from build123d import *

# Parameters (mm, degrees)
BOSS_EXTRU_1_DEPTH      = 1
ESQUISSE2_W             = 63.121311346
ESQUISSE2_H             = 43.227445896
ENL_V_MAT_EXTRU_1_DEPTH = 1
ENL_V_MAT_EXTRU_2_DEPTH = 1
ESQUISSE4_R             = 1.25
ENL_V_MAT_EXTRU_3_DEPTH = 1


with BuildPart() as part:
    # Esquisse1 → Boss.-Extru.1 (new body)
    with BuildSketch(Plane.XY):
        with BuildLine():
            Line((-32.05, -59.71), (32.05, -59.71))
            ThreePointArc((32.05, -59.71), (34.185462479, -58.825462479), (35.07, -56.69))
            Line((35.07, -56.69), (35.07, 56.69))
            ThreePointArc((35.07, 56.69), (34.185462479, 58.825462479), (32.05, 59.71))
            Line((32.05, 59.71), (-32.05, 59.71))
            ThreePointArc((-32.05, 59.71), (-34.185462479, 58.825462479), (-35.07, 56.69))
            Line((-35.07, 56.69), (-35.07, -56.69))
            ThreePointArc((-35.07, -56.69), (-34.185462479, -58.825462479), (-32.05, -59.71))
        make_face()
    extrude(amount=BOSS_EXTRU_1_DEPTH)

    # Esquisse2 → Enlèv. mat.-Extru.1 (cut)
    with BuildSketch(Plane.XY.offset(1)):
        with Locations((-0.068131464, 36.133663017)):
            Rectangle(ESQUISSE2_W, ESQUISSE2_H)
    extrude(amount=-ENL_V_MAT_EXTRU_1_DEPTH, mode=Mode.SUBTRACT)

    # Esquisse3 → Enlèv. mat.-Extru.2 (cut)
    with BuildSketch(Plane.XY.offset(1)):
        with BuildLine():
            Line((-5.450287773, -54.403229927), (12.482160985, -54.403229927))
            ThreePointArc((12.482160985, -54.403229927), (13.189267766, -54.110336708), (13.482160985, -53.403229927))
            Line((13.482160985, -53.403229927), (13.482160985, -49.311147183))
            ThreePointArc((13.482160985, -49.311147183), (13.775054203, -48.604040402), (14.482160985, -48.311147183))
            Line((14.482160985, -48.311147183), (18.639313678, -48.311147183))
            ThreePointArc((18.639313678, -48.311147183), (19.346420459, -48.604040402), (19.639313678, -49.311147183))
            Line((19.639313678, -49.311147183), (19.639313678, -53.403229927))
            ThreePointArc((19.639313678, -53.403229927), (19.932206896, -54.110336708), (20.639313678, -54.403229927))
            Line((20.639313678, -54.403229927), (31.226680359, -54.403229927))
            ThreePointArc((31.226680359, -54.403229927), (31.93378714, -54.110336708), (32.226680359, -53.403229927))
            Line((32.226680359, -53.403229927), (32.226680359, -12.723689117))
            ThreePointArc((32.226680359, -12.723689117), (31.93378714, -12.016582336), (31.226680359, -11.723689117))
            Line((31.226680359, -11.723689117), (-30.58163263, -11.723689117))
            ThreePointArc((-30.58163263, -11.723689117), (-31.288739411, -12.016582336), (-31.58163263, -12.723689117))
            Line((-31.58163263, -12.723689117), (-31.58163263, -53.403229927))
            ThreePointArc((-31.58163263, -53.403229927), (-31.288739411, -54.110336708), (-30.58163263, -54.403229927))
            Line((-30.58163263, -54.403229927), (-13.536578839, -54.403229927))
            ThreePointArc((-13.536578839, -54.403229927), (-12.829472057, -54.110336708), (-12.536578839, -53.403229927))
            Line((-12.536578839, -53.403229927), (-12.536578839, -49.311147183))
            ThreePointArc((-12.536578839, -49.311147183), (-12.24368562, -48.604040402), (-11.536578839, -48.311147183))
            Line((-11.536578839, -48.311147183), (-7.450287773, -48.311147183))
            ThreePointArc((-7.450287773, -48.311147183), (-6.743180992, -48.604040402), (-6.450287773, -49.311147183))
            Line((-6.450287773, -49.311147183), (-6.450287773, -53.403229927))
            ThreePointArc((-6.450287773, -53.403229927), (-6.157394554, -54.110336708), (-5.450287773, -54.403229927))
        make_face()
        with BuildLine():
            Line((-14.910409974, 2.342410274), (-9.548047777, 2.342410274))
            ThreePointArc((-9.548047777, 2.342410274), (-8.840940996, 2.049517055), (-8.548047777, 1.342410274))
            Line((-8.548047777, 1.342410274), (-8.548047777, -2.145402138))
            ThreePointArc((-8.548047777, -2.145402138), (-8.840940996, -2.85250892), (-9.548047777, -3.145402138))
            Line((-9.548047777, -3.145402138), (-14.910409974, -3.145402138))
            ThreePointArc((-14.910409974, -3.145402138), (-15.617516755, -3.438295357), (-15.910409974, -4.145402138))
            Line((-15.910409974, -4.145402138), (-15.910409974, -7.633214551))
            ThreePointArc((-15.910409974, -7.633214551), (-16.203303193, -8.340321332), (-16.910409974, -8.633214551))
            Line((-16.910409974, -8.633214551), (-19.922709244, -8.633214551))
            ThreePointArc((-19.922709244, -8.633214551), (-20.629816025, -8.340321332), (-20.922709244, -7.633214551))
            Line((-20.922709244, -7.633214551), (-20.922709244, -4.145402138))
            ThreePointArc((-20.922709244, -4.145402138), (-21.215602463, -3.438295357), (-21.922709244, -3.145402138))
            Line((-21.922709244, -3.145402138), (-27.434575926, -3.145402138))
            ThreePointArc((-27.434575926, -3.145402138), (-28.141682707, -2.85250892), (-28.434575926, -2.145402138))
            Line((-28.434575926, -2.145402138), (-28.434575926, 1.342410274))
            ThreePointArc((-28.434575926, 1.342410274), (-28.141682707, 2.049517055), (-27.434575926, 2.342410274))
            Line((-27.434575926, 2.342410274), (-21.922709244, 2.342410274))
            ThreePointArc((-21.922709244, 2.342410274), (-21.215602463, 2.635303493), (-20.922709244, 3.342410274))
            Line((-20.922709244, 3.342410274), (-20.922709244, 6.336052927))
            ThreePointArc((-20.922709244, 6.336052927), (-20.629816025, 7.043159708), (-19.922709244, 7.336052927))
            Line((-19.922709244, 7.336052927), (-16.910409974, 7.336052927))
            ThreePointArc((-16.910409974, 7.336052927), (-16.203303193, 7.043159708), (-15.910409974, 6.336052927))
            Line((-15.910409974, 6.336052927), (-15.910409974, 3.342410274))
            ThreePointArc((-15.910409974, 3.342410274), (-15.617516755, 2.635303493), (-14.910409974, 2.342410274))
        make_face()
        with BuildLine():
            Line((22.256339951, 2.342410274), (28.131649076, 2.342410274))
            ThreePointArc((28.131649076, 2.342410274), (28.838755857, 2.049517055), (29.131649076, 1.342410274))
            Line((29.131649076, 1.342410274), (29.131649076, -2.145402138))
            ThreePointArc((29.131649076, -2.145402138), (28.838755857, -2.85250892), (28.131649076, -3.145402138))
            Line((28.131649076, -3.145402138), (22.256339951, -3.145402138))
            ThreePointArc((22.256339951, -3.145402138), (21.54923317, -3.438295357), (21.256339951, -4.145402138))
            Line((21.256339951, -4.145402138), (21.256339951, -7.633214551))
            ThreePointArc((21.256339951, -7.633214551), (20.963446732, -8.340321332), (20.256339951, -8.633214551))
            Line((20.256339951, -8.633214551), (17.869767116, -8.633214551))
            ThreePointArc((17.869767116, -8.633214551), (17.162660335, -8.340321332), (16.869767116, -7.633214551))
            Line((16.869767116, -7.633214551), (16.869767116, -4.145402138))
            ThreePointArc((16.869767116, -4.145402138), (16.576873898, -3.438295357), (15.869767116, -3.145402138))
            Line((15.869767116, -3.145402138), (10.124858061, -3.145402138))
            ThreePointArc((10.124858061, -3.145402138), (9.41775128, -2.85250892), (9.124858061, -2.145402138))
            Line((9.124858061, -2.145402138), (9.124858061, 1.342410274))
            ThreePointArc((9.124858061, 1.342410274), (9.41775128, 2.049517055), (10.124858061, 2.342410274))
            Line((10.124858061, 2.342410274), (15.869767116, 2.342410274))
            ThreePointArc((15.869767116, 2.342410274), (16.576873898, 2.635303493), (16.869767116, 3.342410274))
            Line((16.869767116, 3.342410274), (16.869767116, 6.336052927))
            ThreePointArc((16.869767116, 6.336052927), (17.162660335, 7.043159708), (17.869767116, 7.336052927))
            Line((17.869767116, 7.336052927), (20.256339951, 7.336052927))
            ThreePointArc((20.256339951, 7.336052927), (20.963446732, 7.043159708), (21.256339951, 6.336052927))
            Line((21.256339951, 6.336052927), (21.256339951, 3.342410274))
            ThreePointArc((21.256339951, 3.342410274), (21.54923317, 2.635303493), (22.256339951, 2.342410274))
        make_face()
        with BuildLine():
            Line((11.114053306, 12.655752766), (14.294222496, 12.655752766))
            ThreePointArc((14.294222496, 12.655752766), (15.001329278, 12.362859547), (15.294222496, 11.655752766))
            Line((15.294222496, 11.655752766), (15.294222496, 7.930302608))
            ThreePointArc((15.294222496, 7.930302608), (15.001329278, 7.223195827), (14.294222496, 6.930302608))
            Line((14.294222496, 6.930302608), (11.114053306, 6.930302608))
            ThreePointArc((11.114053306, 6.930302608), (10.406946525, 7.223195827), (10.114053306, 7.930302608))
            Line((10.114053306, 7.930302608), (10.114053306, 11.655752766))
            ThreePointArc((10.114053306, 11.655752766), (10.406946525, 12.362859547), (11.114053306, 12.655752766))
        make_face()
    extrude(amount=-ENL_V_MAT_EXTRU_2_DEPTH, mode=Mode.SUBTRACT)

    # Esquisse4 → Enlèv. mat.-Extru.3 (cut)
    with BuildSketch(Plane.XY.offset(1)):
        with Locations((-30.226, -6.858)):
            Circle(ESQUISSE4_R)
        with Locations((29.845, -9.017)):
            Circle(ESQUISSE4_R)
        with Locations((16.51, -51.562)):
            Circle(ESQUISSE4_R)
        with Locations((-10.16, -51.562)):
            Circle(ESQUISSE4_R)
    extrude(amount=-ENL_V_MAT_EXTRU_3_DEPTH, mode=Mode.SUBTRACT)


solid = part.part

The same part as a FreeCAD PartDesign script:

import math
import FreeCAD as App
import Part
import Sketcher


def add_polygon(sketch, points):
    """Adds a closed chain of lines whose ends are joined by coincident constraints."""
    first, n = sketch.GeometryCount, len(points)
    for a, b in zip(points, points[1:] + points[:1]):
        sketch.addGeometry(Part.LineSegment(App.Vector(*a, 0), App.Vector(*b, 0)), False)
    for i in range(n):
        sketch.addConstraint(Sketcher.Constraint("Coincident", first + i, 2, first + (i + 1) % n, 1))

doc = App.newDocument("Part")
params = doc.addObject("Spreadsheet::Sheet", "Params")
for row, (alias, value) in enumerate([
    ("sketch1_radius", "3.02 mm"),
    ("sketch1_width", "64.1 mm"),
    ("sketch1_height", "113.38 mm"),
    ("pad1_length", "1 mm"),
    ("pocket1_length", "1 mm"),
    ("sketch3_radius", "1 mm"),
    ("pocket2_length", "1 mm"),
    ("sketch4_diameter", "2.5 mm"),
    ("pocket3_length", "1 mm"),
], start=1):
    params.set(f"A{row}", alias)
    params.set(f"B{row}", "=" + value)
    params.setAlias(f"B{row}", alias)

body = doc.addObject("PartDesign::Body", "Body")

sketch1 = body.newObject("Sketcher::SketchObject", "Sketch")
sketch1.AttachmentSupport = (doc.getObject("XY_Plane"), [""])
sketch1.MapMode = "FlatFace"
sketch1.addGeometry([
    Part.LineSegment(App.Vector(-32, -59.7, 0), App.Vector(32, -59.7, 0)),
    Part.ArcOfCircle(Part.Circle(App.Vector(32, -56.7, 0), App.Vector(0, 0, 1), 3), math.radians(-90), math.radians(0)),
    Part.LineSegment(App.Vector(35.1, -56.7, 0), App.Vector(35.1, 56.7, 0)),
    Part.ArcOfCircle(Part.Circle(App.Vector(32, 56.7, 0), App.Vector(0, 0, 1), 3), math.radians(0), math.radians(90)),
    Part.LineSegment(App.Vector(32, 59.7, 0), App.Vector(-32, 59.7, 0)),
    Part.ArcOfCircle(Part.Circle(App.Vector(-32, 56.7, 0), App.Vector(0, 0, 1), 3), math.radians(90), math.radians(180)),
    Part.LineSegment(App.Vector(-35.1, 56.7, 0), App.Vector(-35.1, -56.7, 0)),
    Part.ArcOfCircle(Part.Circle(App.Vector(-32, -56.7, 0), App.Vector(0, 0, 1), 3), math.radians(-180), math.radians(-90)),
], False)
sketch1.addConstraint([
    Sketcher.Constraint("Tangent", 0, 2, 1, 1),
    Sketcher.Constraint("Tangent", 1, 2, 2, 1),
    Sketcher.Constraint("Tangent", 2, 2, 3, 1),
    Sketcher.Constraint("Tangent", 3, 2, 4, 1),
    Sketcher.Constraint("Tangent", 4, 2, 5, 1),
    Sketcher.Constraint("Tangent", 5, 2, 6, 1),
    Sketcher.Constraint("Tangent", 6, 2, 7, 1),
    Sketcher.Constraint("Tangent", 7, 2, 0, 1),
    Sketcher.Constraint("Horizontal", 0),
    Sketcher.Constraint("Vertical", 2),
    Sketcher.Constraint("Horizontal", 4),
    Sketcher.Constraint("Vertical", 6),
    Sketcher.Constraint("Equal", 1, 3),
    Sketcher.Constraint("Equal", 3, 5),
    Sketcher.Constraint("Equal", 5, 7),
    Sketcher.Constraint("Symmetric", 1, 3, 5, 3, -1, 1),
    Sketcher.Constraint("Radius", 1, 3.02),
    Sketcher.Constraint("DistanceX", 0, 1, 0, 2, 64.1),
    Sketcher.Constraint("DistanceY", 2, 1, 2, 2, 113.38),
])
sketch1.setExpression("Constraints[16]", "Params.sketch1_radius")
sketch1.setExpression("Constraints[17]", "Params.sketch1_width")
sketch1.setExpression("Constraints[18]", "Params.sketch1_height")
pad1 = body.newObject("PartDesign::Pad", "Pad")
pad1.Profile = sketch1
pad1.setExpression("Length", "Params.pad1_length")

sketch2 = body.newObject("Sketcher::SketchObject", "Sketch001")
sketch2.AttachmentSupport = (doc.getObject("XY_Plane"), [""])
sketch2.MapMode = "FlatFace"
sketch2.AttachmentOffset = App.Placement(App.Vector(0, 0, 1), App.Rotation())
add_polygon(sketch2, [(-32, 58), (-32, 15), (31, 15), (31, 58)])
sketch2.addConstraint([
    Sketcher.Constraint("Vertical", 0),
    Sketcher.Constraint("Horizontal", 1),
    Sketcher.Constraint("Vertical", 2),
    Sketcher.Constraint("Horizontal", 3),
    Sketcher.Constraint("DistanceX", 1, 1, 1, 2, 63.121311),
    Sketcher.Constraint("DistanceY", 0, 2, 0, 1, 43.227446),
    Sketcher.Constraint("DistanceY", -1, 1, 0, 2, 14.51994),
    Sketcher.Constraint("DistanceX", 0, 2, -1, 1, 31.628787),
])
pocket1 = body.newObject("PartDesign::Pocket", "Pocket")
pocket1.Profile = sketch2
pocket1.setExpression("Length", "Params.pocket1_length")

sketch3 = body.newObject("Sketcher::SketchObject", "Sketch002")
sketch3.AttachmentSupport = (doc.getObject("XY_Plane"), [""])
sketch3.MapMode = "FlatFace"
sketch3.AttachmentOffset = App.Placement(App.Vector(0, 0, 1), App.Rotation())
sketch3.addGeometry([
    Part.LineSegment(App.Vector(-5.5, -54.4, 0), App.Vector(12.5, -54.4, 0)),
    Part.ArcOfCircle(Part.Circle(App.Vector(12.5, -53.4, 0), App.Vector(0, 0, 1), 1), math.radians(-90), math.radians(0)),
    Part.LineSegment(App.Vector(13.5, -53.4, 0), App.Vector(13.5, -49.3, 0)),
    Part.ArcOfCircle(Part.Circle(App.Vector(14.5, -49.3, 0), App.Vector(0, 0, 1), 1), math.radians(90), math.radians(180)),
    Part.LineSegment(App.Vector(14.5, -48.3, 0), App.Vector(18.6, -48.3, 0)),
    Part.ArcOfCircle(Part.Circle(App.Vector(18.6, -49.3, 0), App.Vector(0, 0, 1), 1), math.radians(0), math.radians(90)),
    Part.LineSegment(App.Vector(19.6, -49.3, 0), App.Vector(19.6, -53.4, 0)),
    Part.ArcOfCircle(Part.Circle(App.Vector(20.6, -53.4, 0), App.Vector(0, 0, 1), 1), math.radians(180), math.radians(270)),
    Part.LineSegment(App.Vector(20.6, -54.4, 0), App.Vector(31.2, -54.4, 0)),
    Part.ArcOfCircle(Part.Circle(App.Vector(31.2, -53.4, 0), App.Vector(0, 0, 1), 1), math.radians(-90), math.radians(0)),
    Part.LineSegment(App.Vector(32.2, -53.4, 0), App.Vector(32.2, -12.7, 0)),
    Part.ArcOfCircle(Part.Circle(App.Vector(31.2, -12.7, 0), App.Vector(0, 0, 1), 1), math.radians(0), math.radians(90)),
    Part.LineSegment(App.Vector(31.2, -11.7, 0), App.Vector(-30.6, -11.7, 0)),
    Part.ArcOfCircle(Part.Circle(App.Vector(-30.6, -12.7, 0), App.Vector(0, 0, 1), 1), math.radians(90), math.radians(180)),
    Part.LineSegment(App.Vector(-31.6, -12.7, 0), App.Vector(-31.6, -53.4, 0)),
    Part.ArcOfCircle(Part.Circle(App.Vector(-30.6, -53.4, 0), App.Vector(0, 0, 1), 1), math.radians(-180), math.radians(-90)),
    Part.LineSegment(App.Vector(-30.6, -54.4, 0), App.Vector(-13.5, -54.4, 0)),
    Part.ArcOfCircle(Part.Circle(App.Vector(-13.5, -53.4, 0), App.Vector(0, 0, 1), 1), math.radians(-90), math.radians(0)),
    Part.LineSegment(App.Vector(-12.5, -53.4, 0), App.Vector(-12.5, -49.3, 0)),
    Part.ArcOfCircle(Part.Circle(App.Vector(-11.5, -49.3, 0), App.Vector(0, 0, 1), 1), math.radians(90), math.radians(180)),
    Part.LineSegment(App.Vector(-11.5, -48.3, 0), App.Vector(-7.5, -48.3, 0)),
    Part.ArcOfCircle(Part.Circle(App.Vector(-7.5, -49.3, 0), App.Vector(0, 0, 1), 1), math.radians(0), math.radians(90)),
    Part.LineSegment(App.Vector(-6.5, -49.3, 0), App.Vector(-6.5, -53.4, 0)),
    Part.ArcOfCircle(Part.Circle(App.Vector(-5.5, -53.4, 0), App.Vector(0, 0, 1), 1), math.radians(-180), math.radians(-90)),
    Part.LineSegment(App.Vector(-9.5, 2.3, 0), App.Vector(-14.9, 2.3, 0)),
    Part.ArcOfCircle(Part.Circle(App.Vector(-14.9, 3.3, 0), App.Vector(0, 0, 1), 1), math.radians(-180), math.radians(-90)),
    Part.LineSegment(App.Vector(-15.9, 3.3, 0), App.Vector(-15.9, 6.3, 0)),
    Part.ArcOfCircle(Part.Circle(App.Vector(-16.9, 6.3, 0), App.Vector(0, 0, 1), 1), math.radians(0), math.radians(90)),
    Part.LineSegment(App.Vector(-16.9, 7.3, 0), App.Vector(-19.9, 7.3, 0)),
    Part.ArcOfCircle(Part.Circle(App.Vector(-19.9, 6.3, 0), App.Vector(0, 0, 1), 1), math.radians(90), math.radians(180)),
    Part.LineSegment(App.Vector(-20.9, 6.3, 0), App.Vector(-20.9, 3.3, 0)),
    Part.ArcOfCircle(Part.Circle(App.Vector(-21.9, 3.3, 0), App.Vector(0, 0, 1), 1), math.radians(-90), math.radians(0)),
    Part.LineSegment(App.Vector(-21.9, 2.3, 0), App.Vector(-27.4, 2.3, 0)),
    Part.ArcOfCircle(Part.Circle(App.Vector(-27.4, 1.3, 0), App.Vector(0, 0, 1), 1), math.radians(90), math.radians(180)),
    Part.LineSegment(App.Vector(-28.4, 1.3, 0), App.Vector(-28.4, -2.1, 0)),
    Part.ArcOfCircle(Part.Circle(App.Vector(-27.4, -2.1, 0), App.Vector(0, 0, 1), 1), math.radians(180), math.radians(270)),
    Part.LineSegment(App.Vector(-27.4, -3.1, 0), App.Vector(-21.9, -3.1, 0)),
    Part.ArcOfCircle(Part.Circle(App.Vector(-21.9, -4.1, 0), App.Vector(0, 0, 1), 1), math.radians(0), math.radians(90)),
    Part.LineSegment(App.Vector(-20.9, -4.1, 0), App.Vector(-20.9, -7.6, 0)),
    Part.ArcOfCircle(Part.Circle(App.Vector(-19.9, -7.6, 0), App.Vector(0, 0, 1), 1), math.radians(-180), math.radians(-90)),
    Part.LineSegment(App.Vector(-19.9, -8.6, 0), App.Vector(-16.9, -8.6, 0)),
    Part.ArcOfCircle(Part.Circle(App.Vector(-16.9, -7.6, 0), App.Vector(0, 0, 1), 1), math.radians(-90), math.radians(0)),
    Part.LineSegment(App.Vector(-15.9, -7.6, 0), App.Vector(-15.9, -4.1, 0)),
    Part.ArcOfCircle(Part.Circle(App.Vector(-14.9, -4.1, 0), App.Vector(0, 0, 1), 1), math.radians(90), math.radians(180)),
    Part.LineSegment(App.Vector(-14.9, -3.1, 0), App.Vector(-9.5, -3.1, 0)),
    Part.ArcOfCircle(Part.Circle(App.Vector(-9.5, -2.1, 0), App.Vector(0, 0, 1), 1), math.radians(-90), math.radians(0)),
    Part.LineSegment(App.Vector(-8.5, -2.1, 0), App.Vector(-8.5, 1.3, 0)),
    Part.ArcOfCircle(Part.Circle(App.Vector(-9.5, 1.3, 0), App.Vector(0, 0, 1), 1), math.radians(0), math.radians(90)),
    Part.LineSegment(App.Vector(28.1, 2.3, 0), App.Vector(22.3, 2.3, 0)),
    Part.ArcOfCircle(Part.Circle(App.Vector(22.3, 3.3, 0), App.Vector(0, 0, 1), 1), math.radians(-180), math.radians(-90)),
    Part.LineSegment(App.Vector(21.3, 3.3, 0), App.Vector(21.3, 6.3, 0)),
    Part.ArcOfCircle(Part.Circle(App.Vector(20.3, 6.3, 0), App.Vector(0, 0, 1), 1), math.radians(0), math.radians(90)),
    Part.LineSegment(App.Vector(20.3, 7.3, 0), App.Vector(17.9, 7.3, 0)),
    Part.ArcOfCircle(Part.Circle(App.Vector(17.9, 6.3, 0), App.Vector(0, 0, 1), 1), math.radians(90), math.radians(180)),
    Part.LineSegment(App.Vector(16.9, 6.3, 0), App.Vector(16.9, 3.3, 0)),
    Part.ArcOfCircle(Part.Circle(App.Vector(15.9, 3.3, 0), App.Vector(0, 0, 1), 1), math.radians(-90), math.radians(0)),
    Part.LineSegment(App.Vector(15.9, 2.3, 0), App.Vector(10.1, 2.3, 0)),
    Part.ArcOfCircle(Part.Circle(App.Vector(10.1, 1.3, 0), App.Vector(0, 0, 1), 1), math.radians(90), math.radians(180)),
    Part.LineSegment(App.Vector(9.1, 1.3, 0), App.Vector(9.1, -2.1, 0)),
    Part.ArcOfCircle(Part.Circle(App.Vector(10.1, -2.1, 0), App.Vector(0, 0, 1), 1), math.radians(180), math.radians(270)),
    Part.LineSegment(App.Vector(10.1, -3.1, 0), App.Vector(15.9, -3.1, 0)),
    Part.ArcOfCircle(Part.Circle(App.Vector(15.9, -4.1, 0), App.Vector(0, 0, 1), 1), math.radians(0), math.radians(90)),
    Part.LineSegment(App.Vector(16.9, -4.1, 0), App.Vector(16.9, -7.6, 0)),
    Part.ArcOfCircle(Part.Circle(App.Vector(17.9, -7.6, 0), App.Vector(0, 0, 1), 1), math.radians(-180), math.radians(-90)),
    Part.LineSegment(App.Vector(17.9, -8.6, 0), App.Vector(20.3, -8.6, 0)),
    Part.ArcOfCircle(Part.Circle(App.Vector(20.3, -7.6, 0), App.Vector(0, 0, 1), 1), math.radians(-90), math.radians(0)),
    Part.LineSegment(App.Vector(21.3, -7.6, 0), App.Vector(21.3, -4.1, 0)),
    Part.ArcOfCircle(Part.Circle(App.Vector(22.3, -4.1, 0), App.Vector(0, 0, 1), 1), math.radians(90), math.radians(180)),
    Part.LineSegment(App.Vector(22.3, -3.1, 0), App.Vector(28.1, -3.1, 0)),
    Part.ArcOfCircle(Part.Circle(App.Vector(28.1, -2.1, 0), App.Vector(0, 0, 1), 1), math.radians(-90), math.radians(0)),
    Part.LineSegment(App.Vector(29.1, -2.1, 0), App.Vector(29.1, 1.3, 0)),
    Part.ArcOfCircle(Part.Circle(App.Vector(28.1, 1.3, 0), App.Vector(0, 0, 1), 1), math.radians(0), math.radians(90)),
    Part.LineSegment(App.Vector(14.3, 12.7, 0), App.Vector(11.1, 12.7, 0)),
    Part.ArcOfCircle(Part.Circle(App.Vector(11.1, 11.7, 0), App.Vector(0, 0, 1), 1), math.radians(90), math.radians(180)),
    Part.LineSegment(App.Vector(10.1, 11.7, 0), App.Vector(10.1, 7.9, 0)),
    Part.ArcOfCircle(Part.Circle(App.Vector(11.1, 7.9, 0), App.Vector(0, 0, 1), 1), math.radians(-180), math.radians(-90)),
    Part.LineSegment(App.Vector(11.1, 6.9, 0), App.Vector(14.3, 6.9, 0)),
    Part.ArcOfCircle(Part.Circle(App.Vector(14.3, 7.9, 0), App.Vector(0, 0, 1), 1), math.radians(-90), math.radians(0)),
    Part.LineSegment(App.Vector(15.3, 7.9, 0), App.Vector(15.3, 11.7, 0)),
    Part.ArcOfCircle(Part.Circle(App.Vector(14.3, 11.7, 0), App.Vector(0, 0, 1), 1), math.radians(0), math.radians(90)),
], False)
sketch3.addConstraint([
    Sketcher.Constraint("Tangent", 0, 2, 1, 1),
    Sketcher.Constraint("Tangent", 1, 2, 2, 1),
    Sketcher.Constraint("Tangent", 2, 2, 3, 2),
    Sketcher.Constraint("Tangent", 3, 1, 4, 1),
    Sketcher.Constraint("Tangent", 4, 2, 5, 2),
    Sketcher.Constraint("Tangent", 5, 1, 6, 1),
    Sketcher.Constraint("Tangent", 6, 2, 7, 1),
    Sketcher.Constraint("Tangent", 7, 2, 8, 1),
    Sketcher.Constraint("Tangent", 8, 2, 9, 1),
    Sketcher.Constraint("Tangent", 9, 2, 10, 1),
    Sketcher.Constraint("Tangent", 10, 2, 11, 1),
    Sketcher.Constraint("Tangent", 11, 2, 12, 1),
    Sketcher.Constraint("Tangent", 12, 2, 13, 1),
    Sketcher.Constraint("Tangent", 13, 2, 14, 1),
    Sketcher.Constraint("Tangent", 14, 2, 15, 1),
    Sketcher.Constraint("Tangent", 15, 2, 16, 1),
    Sketcher.Constraint("Tangent", 16, 2, 17, 1),
    Sketcher.Constraint("Tangent", 17, 2, 18, 1),
    Sketcher.Constraint("Tangent", 18, 2, 19, 2),
    Sketcher.Constraint("Tangent", 19, 1, 20, 1),
    Sketcher.Constraint("Tangent", 20, 2, 21, 2),
    Sketcher.Constraint("Tangent", 21, 1, 22, 1),
    Sketcher.Constraint("Tangent", 22, 2, 23, 1),
    Sketcher.Constraint("Tangent", 23, 2, 0, 1),
    Sketcher.Constraint("Tangent", 24, 2, 25, 2),
    Sketcher.Constraint("Tangent", 25, 1, 26, 1),
    Sketcher.Constraint("Tangent", 26, 2, 27, 1),
    Sketcher.Constraint("Tangent", 27, 2, 28, 1),
    Sketcher.Constraint("Tangent", 28, 2, 29, 1),
    Sketcher.Constraint("Tangent", 29, 2, 30, 1),
    Sketcher.Constraint("Tangent", 30, 2, 31, 2),
    Sketcher.Constraint("Tangent", 31, 1, 32, 1),
    Sketcher.Constraint("Tangent", 32, 2, 33, 1),
    Sketcher.Constraint("Tangent", 33, 2, 34, 1),
    Sketcher.Constraint("Tangent", 34, 2, 35, 1),
    Sketcher.Constraint("Tangent", 35, 2, 36, 1),
    Sketcher.Constraint("Tangent", 36, 2, 37, 2),
    Sketcher.Constraint("Tangent", 37, 1, 38, 1),
    Sketcher.Constraint("Tangent", 38, 2, 39, 1),
    Sketcher.Constraint("Tangent", 39, 2, 40, 1),
    Sketcher.Constraint("Tangent", 40, 2, 41, 1),
    Sketcher.Constraint("Tangent", 41, 2, 42, 1),
    Sketcher.Constraint("Tangent", 42, 2, 43, 2),
    Sketcher.Constraint("Tangent", 43, 1, 44, 1),
    Sketcher.Constraint("Tangent", 44, 2, 45, 1),
    Sketcher.Constraint("Tangent", 45, 2, 46, 1),
    Sketcher.Constraint("Tangent", 46, 2, 47, 1),
    Sketcher.Constraint("Tangent", 47, 2, 24, 1),
    Sketcher.Constraint("Tangent", 48, 2, 49, 2),
    Sketcher.Constraint("Tangent", 49, 1, 50, 1),
    Sketcher.Constraint("Tangent", 50, 2, 51, 1),
    Sketcher.Constraint("Tangent", 51, 2, 52, 1),
    Sketcher.Constraint("Tangent", 52, 2, 53, 1),
    Sketcher.Constraint("Tangent", 53, 2, 54, 1),
    Sketcher.Constraint("Tangent", 54, 2, 55, 2),
    Sketcher.Constraint("Tangent", 55, 1, 56, 1),
    Sketcher.Constraint("Tangent", 56, 2, 57, 1),
    Sketcher.Constraint("Tangent", 57, 2, 58, 1),
    Sketcher.Constraint("Tangent", 58, 2, 59, 1),
    Sketcher.Constraint("Tangent", 59, 2, 60, 1),
    Sketcher.Constraint("Tangent", 60, 2, 61, 2),
    Sketcher.Constraint("Tangent", 61, 1, 62, 1),
    Sketcher.Constraint("Tangent", 62, 2, 63, 1),
    Sketcher.Constraint("Tangent", 63, 2, 64, 1),
    Sketcher.Constraint("Tangent", 64, 2, 65, 1),
    Sketcher.Constraint("Tangent", 65, 2, 66, 1),
    Sketcher.Constraint("Tangent", 66, 2, 67, 2),
    Sketcher.Constraint("Tangent", 67, 1, 68, 1),
    Sketcher.Constraint("Tangent", 68, 2, 69, 1),
    Sketcher.Constraint("Tangent", 69, 2, 70, 1),
    Sketcher.Constraint("Tangent", 70, 2, 71, 1),
    Sketcher.Constraint("Tangent", 71, 2, 48, 1),
    Sketcher.Constraint("Tangent", 72, 2, 73, 1),
    Sketcher.Constraint("Tangent", 73, 2, 74, 1),
    Sketcher.Constraint("Tangent", 74, 2, 75, 1),
    Sketcher.Constraint("Tangent", 75, 2, 76, 1),
    Sketcher.Constraint("Tangent", 76, 2, 77, 1),
    Sketcher.Constraint("Tangent", 77, 2, 78, 1),
    Sketcher.Constraint("Tangent", 78, 2, 79, 1),
    Sketcher.Constraint("Tangent", 79, 2, 72, 1),
    Sketcher.Constraint("Horizontal", 0),
    Sketcher.Constraint("Vertical", 2),
    Sketcher.Constraint("Horizontal", 4),
    Sketcher.Constraint("Vertical", 6),
    Sketcher.Constraint("Horizontal", 8),
    Sketcher.Constraint("Vertical", 10),
    Sketcher.Constraint("Horizontal", 12),
    Sketcher.Constraint("Vertical", 14),
    Sketcher.Constraint("Horizontal", 16),
    Sketcher.Constraint("Vertical", 18),
    Sketcher.Constraint("Horizontal", 20),
    Sketcher.Constraint("Vertical", 22),
    Sketcher.Constraint("Horizontal", 24),
    Sketcher.Constraint("Vertical", 26),
    Sketcher.Constraint("Horizontal", 28),
    Sketcher.Constraint("Vertical", 30),
    Sketcher.Constraint("Horizontal", 32),
    Sketcher.Constraint("Vertical", 34),
    Sketcher.Constraint("Horizontal", 36),
    Sketcher.Constraint("Vertical", 38),
    Sketcher.Constraint("Horizontal", 40),
    Sketcher.Constraint("Vertical", 42),
    Sketcher.Constraint("Horizontal", 44),
    Sketcher.Constraint("Vertical", 46),
    Sketcher.Constraint("Horizontal", 48),
    Sketcher.Constraint("Vertical", 50),
    Sketcher.Constraint("Horizontal", 52),
    Sketcher.Constraint("Vertical", 54),
    Sketcher.Constraint("Horizontal", 56),
    Sketcher.Constraint("Vertical", 58),
    Sketcher.Constraint("Horizontal", 60),
    Sketcher.Constraint("Vertical", 62),
    Sketcher.Constraint("Horizontal", 64),
    Sketcher.Constraint("Vertical", 66),
    Sketcher.Constraint("Horizontal", 68),
    Sketcher.Constraint("Vertical", 70),
    Sketcher.Constraint("Horizontal", 72),
    Sketcher.Constraint("Vertical", 74),
    Sketcher.Constraint("Horizontal", 76),
    Sketcher.Constraint("Vertical", 78),
    Sketcher.Constraint("Equal", 1, 3),
    Sketcher.Constraint("Equal", 3, 5),
    Sketcher.Constraint("Equal", 5, 7),
    Sketcher.Constraint("Equal", 7, 9),
    Sketcher.Constraint("Equal", 9, 11),
    Sketcher.Constraint("Equal", 11, 13),
    Sketcher.Constraint("Equal", 13, 15),
    Sketcher.Constraint("Equal", 15, 17),
    Sketcher.Constraint("Equal", 17, 19),
    Sketcher.Constraint("Equal", 19, 21),
    Sketcher.Constraint("Equal", 21, 23),
    Sketcher.Constraint("Equal", 23, 25),
    Sketcher.Constraint("Equal", 25, 27),
    Sketcher.Constraint("Equal", 27, 29),
    Sketcher.Constraint("Equal", 29, 31),
    Sketcher.Constraint("Equal", 31, 33),
    Sketcher.Constraint("Equal", 33, 35),
    Sketcher.Constraint("Equal", 35, 37),
    Sketcher.Constraint("Equal", 37, 39),
    Sketcher.Constraint("Equal", 39, 41),
    Sketcher.Constraint("Equal", 41, 43),
    Sketcher.Constraint("Equal", 43, 45),
    Sketcher.Constraint("Equal", 45, 47),
    Sketcher.Constraint("Equal", 47, 49),
    Sketcher.Constraint("Equal", 49, 51),
    Sketcher.Constraint("Equal", 51, 53),
    Sketcher.Constraint("Equal", 53, 55),
    Sketcher.Constraint("Equal", 55, 57),
    Sketcher.Constraint("Equal", 57, 59),
    Sketcher.Constraint("Equal", 59, 61),
    Sketcher.Constraint("Equal", 61, 63),
    Sketcher.Constraint("Equal", 63, 65),
    Sketcher.Constraint("Equal", 65, 67),
    Sketcher.Constraint("Equal", 67, 69),
    Sketcher.Constraint("Equal", 69, 71),
    Sketcher.Constraint("Equal", 71, 73),
    Sketcher.Constraint("Equal", 73, 75),
    Sketcher.Constraint("Equal", 75, 77),
    Sketcher.Constraint("Equal", 77, 79),
    Sketcher.Constraint("Horizontal", 1, 3, 7, 3),
    Sketcher.Constraint("Horizontal", 9, 3, 15, 3),
    Sketcher.Constraint("Horizontal", 5, 3, 19, 3),
    Sketcher.Constraint("Horizontal", 25, 3, 31, 3),
    Sketcher.Constraint("Horizontal", 37, 3, 43, 3),
    Sketcher.Constraint("Horizontal", 31, 3, 49, 3),
    Sketcher.Constraint("Horizontal", 29, 3, 51, 3),
    Sketcher.Constraint("Horizontal", 49, 3, 55, 3),
    Sketcher.Constraint("Horizontal", 45, 3, 59, 3),
    Sketcher.Constraint("Horizontal", 41, 3, 63, 3),
    Sketcher.Constraint("Horizontal", 61, 3, 67, 3),
    Sketcher.Constraint("Vertical", 31, 3, 37, 3),
    Sketcher.Constraint("Vertical", 27, 3, 41, 3),
    Sketcher.Constraint("Vertical", 55, 3, 61, 3),
    Sketcher.Constraint("Vertical", 51, 3, 65, 3),
    Sketcher.Constraint("Equal", 34, 38),
    Sketcher.Constraint("Radius", 1, 1.0),
    Sketcher.Constraint("DistanceX", 28, 2, 28, 1, 3.012299),
    Sketcher.Constraint("DistanceX", 0, 1, 0, 2, 17.932449),
    Sketcher.Constraint("DistanceX", 20, 1, 20, 2, 4.086291),
    Sketcher.Constraint("DistanceX", 48, 2, 48, 1, 5.875309),
    Sketcher.Constraint("DistanceX", 56, 2, 56, 1, 5.744909),
    Sketcher.Constraint("DistanceX", 72, 2, 72, 1, 3.180169),
    Sketcher.Constraint("DistanceY", 10, 1, 10, 2, 40.679541),
    Sketcher.Constraint("DistanceY", 74, 2, 74, 1, 3.72545),
    Sketcher.Constraint("DistanceX", 4, 1, 4, 2, 4.157153),
    Sketcher.Constraint("DistanceX", 8, 1, 8, 2, 10.587367),
    Sketcher.Constraint("DistanceX", 12, 2, 12, 1, 61.808313),
    Sketcher.Constraint("DistanceX", 24, 2, 24, 1, 5.362362),
    Sketcher.Constraint("DistanceX", 32, 2, 32, 1, 5.511867),
    Sketcher.Constraint("DistanceX", 52, 2, 52, 1, 2.386573),
    Sketcher.Constraint("DistanceY", 2, 1, 2, 2, 4.092083),
    Sketcher.Constraint("DistanceY", 26, 1, 26, 2, 2.993643),
    Sketcher.Constraint("DistanceY", 34, 2, 34, 1, 3.487812),
    Sketcher.Constraint("DistanceX", -1, 1, 1, 3, 12.482161),
    Sketcher.Constraint("DistanceY", 1, 3, -1, 1, 53.40323),
    Sketcher.Constraint("DistanceX", 25, 3, -1, 1, 14.91041),
    Sketcher.Constraint("DistanceY", -1, 1, 25, 3, 3.34241),
    Sketcher.Constraint("DistanceX", -1, 1, 49, 3, 22.25634),
    Sketcher.Constraint("DistanceX", -1, 1, 73, 3, 11.114053),
    Sketcher.Constraint("DistanceY", -1, 1, 73, 3, 11.655753),
])
sketch3.setExpression("Constraints[175]", "Params.sketch3_radius")
pocket2 = body.newObject("PartDesign::Pocket", "Pocket001")
pocket2.Profile = sketch3
pocket2.setExpression("Length", "Params.pocket2_length")

sketch4 = body.newObject("Sketcher::SketchObject", "Sketch003")
sketch4.AttachmentSupport = (doc.getObject("XY_Plane"), [""])
sketch4.MapMode = "FlatFace"
sketch4.AttachmentOffset = App.Placement(App.Vector(0, 0, 1), App.Rotation())
sketch4.addGeometry([
    Part.Circle(App.Vector(-30.2, -6.9, 0), App.Vector(0, 0, 1), 1.2),
    Part.Circle(App.Vector(29.8, -9, 0), App.Vector(0, 0, 1), 1.2),
    Part.Circle(App.Vector(16.5, -51.6, 0), App.Vector(0, 0, 1), 1.2),
    Part.Circle(App.Vector(-10.2, -51.6, 0), App.Vector(0, 0, 1), 1.2),
], False)
sketch4.addConstraint([
    Sketcher.Constraint("Equal", 0, 1),
    Sketcher.Constraint("Equal", 1, 2),
    Sketcher.Constraint("Equal", 2, 3),
    Sketcher.Constraint("Horizontal", 2, 3, 3, 3),
    Sketcher.Constraint("Diameter", 0, 2.5),
    Sketcher.Constraint("DistanceX", -1, 1, 2, 3, 16.51),
    Sketcher.Constraint("DistanceX", 3, 3, -1, 1, 10.16),
    Sketcher.Constraint("DistanceX", 0, 3, -1, 1, 30.226),
    Sketcher.Constraint("DistanceY", 0, 3, -1, 1, 6.858),
    Sketcher.Constraint("DistanceX", -1, 1, 1, 3, 29.845),
    Sketcher.Constraint("DistanceY", 1, 3, -1, 1, 9.017),
    Sketcher.Constraint("DistanceY", 2, 3, -1, 1, 51.562),
])
sketch4.setExpression("Constraints[4]", "Params.sketch4_diameter")
pocket3 = body.newObject("PartDesign::Pocket", "Pocket002")
pocket3.Profile = sketch4
pocket3.setExpression("Length", "Params.pocket3_length")

doc.recompute()
